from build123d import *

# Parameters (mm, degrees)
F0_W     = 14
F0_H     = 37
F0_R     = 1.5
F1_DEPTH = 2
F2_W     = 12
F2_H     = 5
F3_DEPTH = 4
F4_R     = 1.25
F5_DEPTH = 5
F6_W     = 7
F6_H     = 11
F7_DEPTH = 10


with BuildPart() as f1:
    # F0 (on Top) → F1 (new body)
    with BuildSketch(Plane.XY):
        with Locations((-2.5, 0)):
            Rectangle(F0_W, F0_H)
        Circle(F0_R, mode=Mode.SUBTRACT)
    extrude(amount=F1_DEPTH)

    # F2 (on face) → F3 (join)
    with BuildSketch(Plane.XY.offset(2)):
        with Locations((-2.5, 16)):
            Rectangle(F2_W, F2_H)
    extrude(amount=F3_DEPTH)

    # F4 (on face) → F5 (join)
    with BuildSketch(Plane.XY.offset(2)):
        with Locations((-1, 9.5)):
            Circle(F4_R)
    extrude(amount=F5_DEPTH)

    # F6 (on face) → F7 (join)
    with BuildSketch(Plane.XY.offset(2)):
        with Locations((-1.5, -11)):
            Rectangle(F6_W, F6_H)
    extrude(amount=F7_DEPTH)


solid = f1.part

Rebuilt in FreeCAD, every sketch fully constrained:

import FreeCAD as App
import Part
import Sketcher

V = App.Vector
Q = App.Units.Quantity

doc = App.newDocument("Part")
body = doc.addObject("PartDesign::Body", "Body")

# Sketch on XY plane
sketch1 = body.newObject("Sketcher::SketchObject", "Sketch")
sketch1.AttachmentSupport = (doc.getObject("XY_Plane"), [""])
sketch1.MapMode = "FlatFace"
sketch1.addGeometry([
    Part.LineSegment(V(-9.5, 18.5, 0), V(-9.5, -18.5, 0)),  # 0
    Part.LineSegment(V(-9.5, -18.5, 0), V(4.5, -18.5, 0)),  # 1
    Part.LineSegment(V(4.5, -18.5, 0), V(4.5, 18.5, 0)),  # 2
    Part.LineSegment(V(4.5, 18.5, 0), V(-9.5, 18.5, 0)),  # 3
    Part.Circle(V(0, 0, 0), V(0, 0, 1), 1.5),  # 4
], False)
sketch1.addConstraint([
    Sketcher.Constraint("Coincident", 0, 2, 1, 1),
    Sketcher.Constraint("Coincident", 1, 2, 2, 1),
    Sketcher.Constraint("Coincident", 2, 2, 3, 1),
    Sketcher.Constraint("Coincident", 3, 2, 0, 1),
    Sketcher.Constraint("Vertical", 0),
    Sketcher.Constraint("Horizontal", 1),
    Sketcher.Constraint("Vertical", 2),
    Sketcher.Constraint("Horizontal", 3),
    Sketcher.Constraint("Coincident", 4, 3, -1, 1),
    Sketcher.Constraint("Diameter", 4, Q("3 mm")),
    Sketcher.Constraint("DistanceX", 1, 1, 1, 2, Q("14 mm")),
    Sketcher.Constraint("DistanceY", 0, 2, 0, 1, Q("37 mm")),
    Sketcher.Constraint("DistanceX", 0, 2, -1, 1, Q("9.5 mm")),
    Sketcher.Constraint("DistanceY", 0, 2, -1, 1, Q("18.5 mm")),
])
pad1 = body.newObject("PartDesign::Pad", "Pad")
pad1.Profile = sketch1
pad1.Length = 2

# Sketch on XY plane
sketch2 = body.newObject("Sketcher::SketchObject", "Sketch001")
sketch2.AttachmentSupport = (doc.getObject("XY_Plane"), [""])
sketch2.MapMode = "FlatFace"
sketch2.AttachmentOffset = App.Placement(V(0, 0, 2), App.Rotation())
sketch2.addGeometry([
    Part.LineSegment(V(-8.5, 18.5, 0), V(-8.5, 13.5, 0)),
    Part.LineSegment(V(-8.5, 13.5, 0), V(3.5, 13.5, 0)),
    Part.LineSegment(V(3.5, 13.5, 0), V(3.5, 18.5, 0)),
    Part.LineSegment(V(3.5, 18.5, 0), V(-8.5, 18.5, 0)),
], False)
sketch2.addConstraint([
    Sketcher.Constraint("Coincident", 0, 2, 1, 1),
    Sketcher.Constraint("Coincident", 1, 2, 2, 1),
    Sketcher.Constraint("Coincident", 2, 2, 3, 1),
    Sketcher.Constraint("Coincident", 3, 2, 0, 1),
    Sketcher.Constraint("Vertical", 0),
    Sketcher.Constraint("Horizontal", 1),
    Sketcher.Constraint("Vertical", 2),
    Sketcher.Constraint("Horizontal", 3),
    Sketcher.Constraint("DistanceX", 1, 1, 1, 2, Q("12 mm")),
    Sketcher.Constraint("DistanceY", 0, 2, 0, 1, Q("5 mm")),
    Sketcher.Constraint("DistanceX", 0, 2, -1, 1, Q("8.5 mm")),
    Sketcher.Constraint("DistanceY", -1, 1, 0, 2, Q("13.5 mm")),
])
pad2 = body.newObject("PartDesign::Pad", "Pad001")
pad2.Profile = sketch2
pad2.Length = 4

# Sketch on XY plane
sketch3 = body.newObject("Sketcher::SketchObject", "Sketch002")
sketch3.AttachmentSupport = (doc.getObject("XY_Plane"), [""])
sketch3.MapMode = "FlatFace"
sketch3.AttachmentOffset = App.Placement(V(0, 0, 2), App.Rotation())
sketch3.addGeometry(Part.Circle(V(-1, 9.5, 0), V(0, 0, 1), 1.25), False)
sketch3.addConstraint([
    Sketcher.Constraint("Diameter", 0, Q("2.5 mm")),
    Sketcher.Constraint("DistanceX", 0, 3, -1, 1, Q("1 mm")),
    Sketcher.Constraint("DistanceY", -1, 1, 0, 3, Q("9.5 mm")),
])
pad3 = body.newObject("PartDesign::Pad", "Pad002")
pad3.Profile = sketch3
pad3.Length = 5

# Sketch on XY plane
sketch4 = body.newObject("Sketcher::SketchObject", "Sketch003")
sketch4.AttachmentSupport = (doc.getObject("XY_Plane"), [""])
sketch4.MapMode = "FlatFace"
sketch4.AttachmentOffset = App.Placement(V(0, 0, 2), App.Rotation())
sketch4.addGeometry([
    Part.LineSegment(V(-5, -5.5, 0), V(-5, -16.5, 0)),
    Part.LineSegment(V(-5, -16.5, 0), V(2, -16.5, 0)),
    Part.LineSegment(V(2, -16.5, 0), V(2, -5.5, 0)),
    Part.LineSegment(V(2, -5.5, 0), V(-5, -5.5, 0)),
], False)
sketch4.addConstraint([
    Sketcher.Constraint("Coincident", 0, 2, 1, 1),
    Sketcher.Constraint("Coincident", 1, 2, 2, 1),
    Sketcher.Constraint("Coincident", 2, 2, 3, 1),
    Sketcher.Constraint("Coincident", 3, 2, 0, 1),
    Sketcher.Constraint("Vertical", 0),
    Sketcher.Constraint("Horizontal", 1),
    Sketcher.Constraint("Vertical", 2),
    Sketcher.Constraint("Horizontal", 3),
    Sketcher.Constraint("DistanceX", 1, 1, 1, 2, Q("7 mm")),
    Sketcher.Constraint("DistanceY", 0, 2, 0, 1, Q("11 mm")),
    Sketcher.Constraint("DistanceX", 0, 2, -1, 1, Q("5 mm")),
    Sketcher.Constraint("DistanceY", 0, 2, -1, 1, Q("16.5 mm")),
])
pad4 = body.newObject("PartDesign::Pad", "Pad003")
pad4.Profile = sketch4
pad4.Length = 10

doc.recompute()
